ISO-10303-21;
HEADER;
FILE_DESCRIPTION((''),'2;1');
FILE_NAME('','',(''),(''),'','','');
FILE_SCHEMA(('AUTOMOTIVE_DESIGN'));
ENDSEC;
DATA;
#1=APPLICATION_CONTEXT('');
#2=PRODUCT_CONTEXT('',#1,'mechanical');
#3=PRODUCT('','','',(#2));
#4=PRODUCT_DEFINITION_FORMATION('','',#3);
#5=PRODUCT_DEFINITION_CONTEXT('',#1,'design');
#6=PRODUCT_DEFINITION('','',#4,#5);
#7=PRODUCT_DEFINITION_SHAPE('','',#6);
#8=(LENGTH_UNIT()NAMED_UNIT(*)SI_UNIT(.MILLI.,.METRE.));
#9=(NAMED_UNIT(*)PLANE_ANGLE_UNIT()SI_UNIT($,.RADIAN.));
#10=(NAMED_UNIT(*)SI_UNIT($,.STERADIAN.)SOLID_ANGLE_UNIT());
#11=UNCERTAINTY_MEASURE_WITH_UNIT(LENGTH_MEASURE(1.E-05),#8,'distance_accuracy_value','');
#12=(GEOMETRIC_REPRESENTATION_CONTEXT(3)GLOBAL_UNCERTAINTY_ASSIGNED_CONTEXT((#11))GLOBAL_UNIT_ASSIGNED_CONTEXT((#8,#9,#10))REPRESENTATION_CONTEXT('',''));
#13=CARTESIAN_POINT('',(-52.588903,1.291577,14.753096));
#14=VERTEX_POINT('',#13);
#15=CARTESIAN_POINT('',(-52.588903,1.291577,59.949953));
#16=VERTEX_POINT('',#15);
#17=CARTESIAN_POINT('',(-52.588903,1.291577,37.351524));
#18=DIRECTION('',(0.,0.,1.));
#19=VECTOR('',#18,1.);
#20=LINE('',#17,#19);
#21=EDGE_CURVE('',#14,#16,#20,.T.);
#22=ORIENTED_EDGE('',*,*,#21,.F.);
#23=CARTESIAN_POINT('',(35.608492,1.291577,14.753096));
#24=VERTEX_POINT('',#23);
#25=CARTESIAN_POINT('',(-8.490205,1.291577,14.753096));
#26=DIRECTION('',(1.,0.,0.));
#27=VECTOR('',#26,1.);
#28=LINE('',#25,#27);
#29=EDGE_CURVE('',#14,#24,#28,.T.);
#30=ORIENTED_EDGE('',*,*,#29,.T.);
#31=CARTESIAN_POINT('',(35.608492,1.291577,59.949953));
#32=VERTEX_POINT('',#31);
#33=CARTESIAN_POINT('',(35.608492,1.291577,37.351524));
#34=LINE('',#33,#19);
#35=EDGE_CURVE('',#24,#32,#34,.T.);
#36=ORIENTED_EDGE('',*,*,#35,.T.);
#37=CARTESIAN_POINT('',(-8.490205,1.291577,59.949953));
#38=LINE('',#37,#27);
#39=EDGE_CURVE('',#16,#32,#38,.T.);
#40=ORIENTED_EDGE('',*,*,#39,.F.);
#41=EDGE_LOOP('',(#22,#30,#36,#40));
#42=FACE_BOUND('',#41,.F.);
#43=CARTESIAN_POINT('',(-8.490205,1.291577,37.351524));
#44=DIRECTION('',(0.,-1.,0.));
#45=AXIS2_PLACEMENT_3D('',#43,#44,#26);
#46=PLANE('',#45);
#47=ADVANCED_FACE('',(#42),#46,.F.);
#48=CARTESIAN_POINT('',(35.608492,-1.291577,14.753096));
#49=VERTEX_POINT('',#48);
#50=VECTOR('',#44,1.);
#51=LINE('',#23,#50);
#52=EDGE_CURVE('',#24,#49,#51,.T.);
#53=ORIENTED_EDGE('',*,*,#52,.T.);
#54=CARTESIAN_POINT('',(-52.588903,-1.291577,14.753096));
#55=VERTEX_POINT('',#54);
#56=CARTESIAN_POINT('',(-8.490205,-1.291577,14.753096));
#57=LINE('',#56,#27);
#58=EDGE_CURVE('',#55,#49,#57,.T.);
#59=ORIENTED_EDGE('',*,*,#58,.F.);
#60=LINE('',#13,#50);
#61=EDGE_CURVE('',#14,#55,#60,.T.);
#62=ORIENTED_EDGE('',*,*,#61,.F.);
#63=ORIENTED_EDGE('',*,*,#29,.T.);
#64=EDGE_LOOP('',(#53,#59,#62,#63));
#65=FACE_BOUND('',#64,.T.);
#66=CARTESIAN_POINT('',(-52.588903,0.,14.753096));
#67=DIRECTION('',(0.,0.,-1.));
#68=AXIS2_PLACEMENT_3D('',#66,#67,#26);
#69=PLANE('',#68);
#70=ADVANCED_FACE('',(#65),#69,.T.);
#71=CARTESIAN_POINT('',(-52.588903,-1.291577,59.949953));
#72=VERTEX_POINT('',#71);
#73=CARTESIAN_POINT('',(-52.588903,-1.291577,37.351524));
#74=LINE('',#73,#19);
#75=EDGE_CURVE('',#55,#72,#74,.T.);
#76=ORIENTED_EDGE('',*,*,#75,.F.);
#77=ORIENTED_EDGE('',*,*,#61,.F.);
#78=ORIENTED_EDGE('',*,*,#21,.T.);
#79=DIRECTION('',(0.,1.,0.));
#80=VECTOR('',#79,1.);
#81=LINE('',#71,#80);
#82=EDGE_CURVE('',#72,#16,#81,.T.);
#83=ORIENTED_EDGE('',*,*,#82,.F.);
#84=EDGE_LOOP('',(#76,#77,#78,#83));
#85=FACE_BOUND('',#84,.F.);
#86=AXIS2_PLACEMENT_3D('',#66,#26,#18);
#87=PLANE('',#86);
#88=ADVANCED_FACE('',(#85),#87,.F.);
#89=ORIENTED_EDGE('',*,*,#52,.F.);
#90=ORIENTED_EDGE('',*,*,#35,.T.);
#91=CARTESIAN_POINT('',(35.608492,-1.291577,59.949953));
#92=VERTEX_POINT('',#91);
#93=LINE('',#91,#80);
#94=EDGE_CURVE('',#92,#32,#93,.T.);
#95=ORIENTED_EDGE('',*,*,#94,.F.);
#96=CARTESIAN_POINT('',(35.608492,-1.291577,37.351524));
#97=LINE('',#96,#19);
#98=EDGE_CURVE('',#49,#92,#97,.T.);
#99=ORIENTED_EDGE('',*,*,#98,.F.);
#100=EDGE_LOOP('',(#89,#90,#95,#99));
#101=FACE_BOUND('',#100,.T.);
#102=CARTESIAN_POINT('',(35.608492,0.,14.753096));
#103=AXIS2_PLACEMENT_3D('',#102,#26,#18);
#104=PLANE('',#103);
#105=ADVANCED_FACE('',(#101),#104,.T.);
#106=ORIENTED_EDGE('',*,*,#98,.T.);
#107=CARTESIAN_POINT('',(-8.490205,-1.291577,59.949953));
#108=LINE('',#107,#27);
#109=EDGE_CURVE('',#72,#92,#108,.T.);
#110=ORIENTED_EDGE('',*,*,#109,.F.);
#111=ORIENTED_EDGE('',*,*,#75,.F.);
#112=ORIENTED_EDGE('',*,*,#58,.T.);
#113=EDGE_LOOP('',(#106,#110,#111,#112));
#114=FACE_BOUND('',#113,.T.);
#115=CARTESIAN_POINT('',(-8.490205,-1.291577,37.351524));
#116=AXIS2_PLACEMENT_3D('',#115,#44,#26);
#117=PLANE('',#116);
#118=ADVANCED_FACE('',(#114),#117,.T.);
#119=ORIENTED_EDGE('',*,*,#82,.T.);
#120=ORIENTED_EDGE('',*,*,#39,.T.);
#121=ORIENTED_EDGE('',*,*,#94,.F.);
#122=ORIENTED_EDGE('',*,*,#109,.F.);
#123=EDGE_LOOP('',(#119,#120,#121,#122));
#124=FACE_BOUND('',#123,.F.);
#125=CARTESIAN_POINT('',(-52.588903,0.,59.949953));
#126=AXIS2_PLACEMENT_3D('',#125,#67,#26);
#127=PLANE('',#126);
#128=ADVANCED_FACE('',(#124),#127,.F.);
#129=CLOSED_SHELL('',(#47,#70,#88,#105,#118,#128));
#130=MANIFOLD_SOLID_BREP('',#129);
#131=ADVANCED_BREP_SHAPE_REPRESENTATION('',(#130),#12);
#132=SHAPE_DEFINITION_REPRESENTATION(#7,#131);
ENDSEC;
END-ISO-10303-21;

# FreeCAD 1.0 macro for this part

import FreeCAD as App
import Part
import Sketcher

V = App.Vector
Q = App.Units.Quantity

doc = App.newDocument("Part")
params = doc.addObject("Spreadsheet::Sheet", "Params")
for row, (alias, value) in enumerate([
    ("pad1_length", "2.583154 mm"),
], start=1):
    params.set(f"A{row}", alias)
    params.set(f"B{row}", "=" + value)
    params.setAlias(f"B{row}", alias)

body = doc.addObject("PartDesign::Body", "Body")

# Sketch on XZ plane
sketch1 = body.newObject("Sketcher::SketchObject", "Sketch")
sketch1.AttachmentSupport = (doc.getObject("XZ_Plane"), [""])
sketch1.MapMode = "FlatFace"
sketch1.addGeometry([
    Part.LineSegment(V(-53, 60, 0), V(-53, 15, 0)),
    Part.LineSegment(V(-53, 15, 0), V(36, 15, 0)),
    Part.LineSegment(V(36, 15, 0), V(36, 60, 0)),
    Part.LineSegment(V(36, 60, 0), V(-53, 60, 0)),
], False)
sketch1.addConstraint([
    Sketcher.Constraint("Coincident", 0, 2, 1, 1),
    Sketcher.Constraint("Coincident", 1, 2, 2, 1),
    Sketcher.Constraint("Coincident", 2, 2, 3, 1),
    Sketcher.Constraint("Coincident", 3, 2, 0, 1),
    Sketcher.Constraint("Vertical", 0),
    Sketcher.Constraint("Horizontal", 1),
    Sketcher.Constraint("Vertical", 2),
    Sketcher.Constraint("Horizontal", 3),
    Sketcher.Constraint("DistanceX", 1, 1, 1, 2, Q("88.197395 mm")),
    Sketcher.Constraint("DistanceY", 0, 2, 0, 1, Q("45.196857 mm")),
    Sketcher.Constraint("DistanceX", 0, 2, -1, 1, Q("52.588903 mm")),
    Sketcher.Constraint("DistanceY", -1, 1, 0, 2, Q("14.753096 mm")),
])
pad1 = body.newObject("PartDesign::Pad", "Pad")
pad1.Profile = sketch1
pad1.setExpression("Length", "Params.pad1_length")
pad1.Midplane = True

doc.recompute()
